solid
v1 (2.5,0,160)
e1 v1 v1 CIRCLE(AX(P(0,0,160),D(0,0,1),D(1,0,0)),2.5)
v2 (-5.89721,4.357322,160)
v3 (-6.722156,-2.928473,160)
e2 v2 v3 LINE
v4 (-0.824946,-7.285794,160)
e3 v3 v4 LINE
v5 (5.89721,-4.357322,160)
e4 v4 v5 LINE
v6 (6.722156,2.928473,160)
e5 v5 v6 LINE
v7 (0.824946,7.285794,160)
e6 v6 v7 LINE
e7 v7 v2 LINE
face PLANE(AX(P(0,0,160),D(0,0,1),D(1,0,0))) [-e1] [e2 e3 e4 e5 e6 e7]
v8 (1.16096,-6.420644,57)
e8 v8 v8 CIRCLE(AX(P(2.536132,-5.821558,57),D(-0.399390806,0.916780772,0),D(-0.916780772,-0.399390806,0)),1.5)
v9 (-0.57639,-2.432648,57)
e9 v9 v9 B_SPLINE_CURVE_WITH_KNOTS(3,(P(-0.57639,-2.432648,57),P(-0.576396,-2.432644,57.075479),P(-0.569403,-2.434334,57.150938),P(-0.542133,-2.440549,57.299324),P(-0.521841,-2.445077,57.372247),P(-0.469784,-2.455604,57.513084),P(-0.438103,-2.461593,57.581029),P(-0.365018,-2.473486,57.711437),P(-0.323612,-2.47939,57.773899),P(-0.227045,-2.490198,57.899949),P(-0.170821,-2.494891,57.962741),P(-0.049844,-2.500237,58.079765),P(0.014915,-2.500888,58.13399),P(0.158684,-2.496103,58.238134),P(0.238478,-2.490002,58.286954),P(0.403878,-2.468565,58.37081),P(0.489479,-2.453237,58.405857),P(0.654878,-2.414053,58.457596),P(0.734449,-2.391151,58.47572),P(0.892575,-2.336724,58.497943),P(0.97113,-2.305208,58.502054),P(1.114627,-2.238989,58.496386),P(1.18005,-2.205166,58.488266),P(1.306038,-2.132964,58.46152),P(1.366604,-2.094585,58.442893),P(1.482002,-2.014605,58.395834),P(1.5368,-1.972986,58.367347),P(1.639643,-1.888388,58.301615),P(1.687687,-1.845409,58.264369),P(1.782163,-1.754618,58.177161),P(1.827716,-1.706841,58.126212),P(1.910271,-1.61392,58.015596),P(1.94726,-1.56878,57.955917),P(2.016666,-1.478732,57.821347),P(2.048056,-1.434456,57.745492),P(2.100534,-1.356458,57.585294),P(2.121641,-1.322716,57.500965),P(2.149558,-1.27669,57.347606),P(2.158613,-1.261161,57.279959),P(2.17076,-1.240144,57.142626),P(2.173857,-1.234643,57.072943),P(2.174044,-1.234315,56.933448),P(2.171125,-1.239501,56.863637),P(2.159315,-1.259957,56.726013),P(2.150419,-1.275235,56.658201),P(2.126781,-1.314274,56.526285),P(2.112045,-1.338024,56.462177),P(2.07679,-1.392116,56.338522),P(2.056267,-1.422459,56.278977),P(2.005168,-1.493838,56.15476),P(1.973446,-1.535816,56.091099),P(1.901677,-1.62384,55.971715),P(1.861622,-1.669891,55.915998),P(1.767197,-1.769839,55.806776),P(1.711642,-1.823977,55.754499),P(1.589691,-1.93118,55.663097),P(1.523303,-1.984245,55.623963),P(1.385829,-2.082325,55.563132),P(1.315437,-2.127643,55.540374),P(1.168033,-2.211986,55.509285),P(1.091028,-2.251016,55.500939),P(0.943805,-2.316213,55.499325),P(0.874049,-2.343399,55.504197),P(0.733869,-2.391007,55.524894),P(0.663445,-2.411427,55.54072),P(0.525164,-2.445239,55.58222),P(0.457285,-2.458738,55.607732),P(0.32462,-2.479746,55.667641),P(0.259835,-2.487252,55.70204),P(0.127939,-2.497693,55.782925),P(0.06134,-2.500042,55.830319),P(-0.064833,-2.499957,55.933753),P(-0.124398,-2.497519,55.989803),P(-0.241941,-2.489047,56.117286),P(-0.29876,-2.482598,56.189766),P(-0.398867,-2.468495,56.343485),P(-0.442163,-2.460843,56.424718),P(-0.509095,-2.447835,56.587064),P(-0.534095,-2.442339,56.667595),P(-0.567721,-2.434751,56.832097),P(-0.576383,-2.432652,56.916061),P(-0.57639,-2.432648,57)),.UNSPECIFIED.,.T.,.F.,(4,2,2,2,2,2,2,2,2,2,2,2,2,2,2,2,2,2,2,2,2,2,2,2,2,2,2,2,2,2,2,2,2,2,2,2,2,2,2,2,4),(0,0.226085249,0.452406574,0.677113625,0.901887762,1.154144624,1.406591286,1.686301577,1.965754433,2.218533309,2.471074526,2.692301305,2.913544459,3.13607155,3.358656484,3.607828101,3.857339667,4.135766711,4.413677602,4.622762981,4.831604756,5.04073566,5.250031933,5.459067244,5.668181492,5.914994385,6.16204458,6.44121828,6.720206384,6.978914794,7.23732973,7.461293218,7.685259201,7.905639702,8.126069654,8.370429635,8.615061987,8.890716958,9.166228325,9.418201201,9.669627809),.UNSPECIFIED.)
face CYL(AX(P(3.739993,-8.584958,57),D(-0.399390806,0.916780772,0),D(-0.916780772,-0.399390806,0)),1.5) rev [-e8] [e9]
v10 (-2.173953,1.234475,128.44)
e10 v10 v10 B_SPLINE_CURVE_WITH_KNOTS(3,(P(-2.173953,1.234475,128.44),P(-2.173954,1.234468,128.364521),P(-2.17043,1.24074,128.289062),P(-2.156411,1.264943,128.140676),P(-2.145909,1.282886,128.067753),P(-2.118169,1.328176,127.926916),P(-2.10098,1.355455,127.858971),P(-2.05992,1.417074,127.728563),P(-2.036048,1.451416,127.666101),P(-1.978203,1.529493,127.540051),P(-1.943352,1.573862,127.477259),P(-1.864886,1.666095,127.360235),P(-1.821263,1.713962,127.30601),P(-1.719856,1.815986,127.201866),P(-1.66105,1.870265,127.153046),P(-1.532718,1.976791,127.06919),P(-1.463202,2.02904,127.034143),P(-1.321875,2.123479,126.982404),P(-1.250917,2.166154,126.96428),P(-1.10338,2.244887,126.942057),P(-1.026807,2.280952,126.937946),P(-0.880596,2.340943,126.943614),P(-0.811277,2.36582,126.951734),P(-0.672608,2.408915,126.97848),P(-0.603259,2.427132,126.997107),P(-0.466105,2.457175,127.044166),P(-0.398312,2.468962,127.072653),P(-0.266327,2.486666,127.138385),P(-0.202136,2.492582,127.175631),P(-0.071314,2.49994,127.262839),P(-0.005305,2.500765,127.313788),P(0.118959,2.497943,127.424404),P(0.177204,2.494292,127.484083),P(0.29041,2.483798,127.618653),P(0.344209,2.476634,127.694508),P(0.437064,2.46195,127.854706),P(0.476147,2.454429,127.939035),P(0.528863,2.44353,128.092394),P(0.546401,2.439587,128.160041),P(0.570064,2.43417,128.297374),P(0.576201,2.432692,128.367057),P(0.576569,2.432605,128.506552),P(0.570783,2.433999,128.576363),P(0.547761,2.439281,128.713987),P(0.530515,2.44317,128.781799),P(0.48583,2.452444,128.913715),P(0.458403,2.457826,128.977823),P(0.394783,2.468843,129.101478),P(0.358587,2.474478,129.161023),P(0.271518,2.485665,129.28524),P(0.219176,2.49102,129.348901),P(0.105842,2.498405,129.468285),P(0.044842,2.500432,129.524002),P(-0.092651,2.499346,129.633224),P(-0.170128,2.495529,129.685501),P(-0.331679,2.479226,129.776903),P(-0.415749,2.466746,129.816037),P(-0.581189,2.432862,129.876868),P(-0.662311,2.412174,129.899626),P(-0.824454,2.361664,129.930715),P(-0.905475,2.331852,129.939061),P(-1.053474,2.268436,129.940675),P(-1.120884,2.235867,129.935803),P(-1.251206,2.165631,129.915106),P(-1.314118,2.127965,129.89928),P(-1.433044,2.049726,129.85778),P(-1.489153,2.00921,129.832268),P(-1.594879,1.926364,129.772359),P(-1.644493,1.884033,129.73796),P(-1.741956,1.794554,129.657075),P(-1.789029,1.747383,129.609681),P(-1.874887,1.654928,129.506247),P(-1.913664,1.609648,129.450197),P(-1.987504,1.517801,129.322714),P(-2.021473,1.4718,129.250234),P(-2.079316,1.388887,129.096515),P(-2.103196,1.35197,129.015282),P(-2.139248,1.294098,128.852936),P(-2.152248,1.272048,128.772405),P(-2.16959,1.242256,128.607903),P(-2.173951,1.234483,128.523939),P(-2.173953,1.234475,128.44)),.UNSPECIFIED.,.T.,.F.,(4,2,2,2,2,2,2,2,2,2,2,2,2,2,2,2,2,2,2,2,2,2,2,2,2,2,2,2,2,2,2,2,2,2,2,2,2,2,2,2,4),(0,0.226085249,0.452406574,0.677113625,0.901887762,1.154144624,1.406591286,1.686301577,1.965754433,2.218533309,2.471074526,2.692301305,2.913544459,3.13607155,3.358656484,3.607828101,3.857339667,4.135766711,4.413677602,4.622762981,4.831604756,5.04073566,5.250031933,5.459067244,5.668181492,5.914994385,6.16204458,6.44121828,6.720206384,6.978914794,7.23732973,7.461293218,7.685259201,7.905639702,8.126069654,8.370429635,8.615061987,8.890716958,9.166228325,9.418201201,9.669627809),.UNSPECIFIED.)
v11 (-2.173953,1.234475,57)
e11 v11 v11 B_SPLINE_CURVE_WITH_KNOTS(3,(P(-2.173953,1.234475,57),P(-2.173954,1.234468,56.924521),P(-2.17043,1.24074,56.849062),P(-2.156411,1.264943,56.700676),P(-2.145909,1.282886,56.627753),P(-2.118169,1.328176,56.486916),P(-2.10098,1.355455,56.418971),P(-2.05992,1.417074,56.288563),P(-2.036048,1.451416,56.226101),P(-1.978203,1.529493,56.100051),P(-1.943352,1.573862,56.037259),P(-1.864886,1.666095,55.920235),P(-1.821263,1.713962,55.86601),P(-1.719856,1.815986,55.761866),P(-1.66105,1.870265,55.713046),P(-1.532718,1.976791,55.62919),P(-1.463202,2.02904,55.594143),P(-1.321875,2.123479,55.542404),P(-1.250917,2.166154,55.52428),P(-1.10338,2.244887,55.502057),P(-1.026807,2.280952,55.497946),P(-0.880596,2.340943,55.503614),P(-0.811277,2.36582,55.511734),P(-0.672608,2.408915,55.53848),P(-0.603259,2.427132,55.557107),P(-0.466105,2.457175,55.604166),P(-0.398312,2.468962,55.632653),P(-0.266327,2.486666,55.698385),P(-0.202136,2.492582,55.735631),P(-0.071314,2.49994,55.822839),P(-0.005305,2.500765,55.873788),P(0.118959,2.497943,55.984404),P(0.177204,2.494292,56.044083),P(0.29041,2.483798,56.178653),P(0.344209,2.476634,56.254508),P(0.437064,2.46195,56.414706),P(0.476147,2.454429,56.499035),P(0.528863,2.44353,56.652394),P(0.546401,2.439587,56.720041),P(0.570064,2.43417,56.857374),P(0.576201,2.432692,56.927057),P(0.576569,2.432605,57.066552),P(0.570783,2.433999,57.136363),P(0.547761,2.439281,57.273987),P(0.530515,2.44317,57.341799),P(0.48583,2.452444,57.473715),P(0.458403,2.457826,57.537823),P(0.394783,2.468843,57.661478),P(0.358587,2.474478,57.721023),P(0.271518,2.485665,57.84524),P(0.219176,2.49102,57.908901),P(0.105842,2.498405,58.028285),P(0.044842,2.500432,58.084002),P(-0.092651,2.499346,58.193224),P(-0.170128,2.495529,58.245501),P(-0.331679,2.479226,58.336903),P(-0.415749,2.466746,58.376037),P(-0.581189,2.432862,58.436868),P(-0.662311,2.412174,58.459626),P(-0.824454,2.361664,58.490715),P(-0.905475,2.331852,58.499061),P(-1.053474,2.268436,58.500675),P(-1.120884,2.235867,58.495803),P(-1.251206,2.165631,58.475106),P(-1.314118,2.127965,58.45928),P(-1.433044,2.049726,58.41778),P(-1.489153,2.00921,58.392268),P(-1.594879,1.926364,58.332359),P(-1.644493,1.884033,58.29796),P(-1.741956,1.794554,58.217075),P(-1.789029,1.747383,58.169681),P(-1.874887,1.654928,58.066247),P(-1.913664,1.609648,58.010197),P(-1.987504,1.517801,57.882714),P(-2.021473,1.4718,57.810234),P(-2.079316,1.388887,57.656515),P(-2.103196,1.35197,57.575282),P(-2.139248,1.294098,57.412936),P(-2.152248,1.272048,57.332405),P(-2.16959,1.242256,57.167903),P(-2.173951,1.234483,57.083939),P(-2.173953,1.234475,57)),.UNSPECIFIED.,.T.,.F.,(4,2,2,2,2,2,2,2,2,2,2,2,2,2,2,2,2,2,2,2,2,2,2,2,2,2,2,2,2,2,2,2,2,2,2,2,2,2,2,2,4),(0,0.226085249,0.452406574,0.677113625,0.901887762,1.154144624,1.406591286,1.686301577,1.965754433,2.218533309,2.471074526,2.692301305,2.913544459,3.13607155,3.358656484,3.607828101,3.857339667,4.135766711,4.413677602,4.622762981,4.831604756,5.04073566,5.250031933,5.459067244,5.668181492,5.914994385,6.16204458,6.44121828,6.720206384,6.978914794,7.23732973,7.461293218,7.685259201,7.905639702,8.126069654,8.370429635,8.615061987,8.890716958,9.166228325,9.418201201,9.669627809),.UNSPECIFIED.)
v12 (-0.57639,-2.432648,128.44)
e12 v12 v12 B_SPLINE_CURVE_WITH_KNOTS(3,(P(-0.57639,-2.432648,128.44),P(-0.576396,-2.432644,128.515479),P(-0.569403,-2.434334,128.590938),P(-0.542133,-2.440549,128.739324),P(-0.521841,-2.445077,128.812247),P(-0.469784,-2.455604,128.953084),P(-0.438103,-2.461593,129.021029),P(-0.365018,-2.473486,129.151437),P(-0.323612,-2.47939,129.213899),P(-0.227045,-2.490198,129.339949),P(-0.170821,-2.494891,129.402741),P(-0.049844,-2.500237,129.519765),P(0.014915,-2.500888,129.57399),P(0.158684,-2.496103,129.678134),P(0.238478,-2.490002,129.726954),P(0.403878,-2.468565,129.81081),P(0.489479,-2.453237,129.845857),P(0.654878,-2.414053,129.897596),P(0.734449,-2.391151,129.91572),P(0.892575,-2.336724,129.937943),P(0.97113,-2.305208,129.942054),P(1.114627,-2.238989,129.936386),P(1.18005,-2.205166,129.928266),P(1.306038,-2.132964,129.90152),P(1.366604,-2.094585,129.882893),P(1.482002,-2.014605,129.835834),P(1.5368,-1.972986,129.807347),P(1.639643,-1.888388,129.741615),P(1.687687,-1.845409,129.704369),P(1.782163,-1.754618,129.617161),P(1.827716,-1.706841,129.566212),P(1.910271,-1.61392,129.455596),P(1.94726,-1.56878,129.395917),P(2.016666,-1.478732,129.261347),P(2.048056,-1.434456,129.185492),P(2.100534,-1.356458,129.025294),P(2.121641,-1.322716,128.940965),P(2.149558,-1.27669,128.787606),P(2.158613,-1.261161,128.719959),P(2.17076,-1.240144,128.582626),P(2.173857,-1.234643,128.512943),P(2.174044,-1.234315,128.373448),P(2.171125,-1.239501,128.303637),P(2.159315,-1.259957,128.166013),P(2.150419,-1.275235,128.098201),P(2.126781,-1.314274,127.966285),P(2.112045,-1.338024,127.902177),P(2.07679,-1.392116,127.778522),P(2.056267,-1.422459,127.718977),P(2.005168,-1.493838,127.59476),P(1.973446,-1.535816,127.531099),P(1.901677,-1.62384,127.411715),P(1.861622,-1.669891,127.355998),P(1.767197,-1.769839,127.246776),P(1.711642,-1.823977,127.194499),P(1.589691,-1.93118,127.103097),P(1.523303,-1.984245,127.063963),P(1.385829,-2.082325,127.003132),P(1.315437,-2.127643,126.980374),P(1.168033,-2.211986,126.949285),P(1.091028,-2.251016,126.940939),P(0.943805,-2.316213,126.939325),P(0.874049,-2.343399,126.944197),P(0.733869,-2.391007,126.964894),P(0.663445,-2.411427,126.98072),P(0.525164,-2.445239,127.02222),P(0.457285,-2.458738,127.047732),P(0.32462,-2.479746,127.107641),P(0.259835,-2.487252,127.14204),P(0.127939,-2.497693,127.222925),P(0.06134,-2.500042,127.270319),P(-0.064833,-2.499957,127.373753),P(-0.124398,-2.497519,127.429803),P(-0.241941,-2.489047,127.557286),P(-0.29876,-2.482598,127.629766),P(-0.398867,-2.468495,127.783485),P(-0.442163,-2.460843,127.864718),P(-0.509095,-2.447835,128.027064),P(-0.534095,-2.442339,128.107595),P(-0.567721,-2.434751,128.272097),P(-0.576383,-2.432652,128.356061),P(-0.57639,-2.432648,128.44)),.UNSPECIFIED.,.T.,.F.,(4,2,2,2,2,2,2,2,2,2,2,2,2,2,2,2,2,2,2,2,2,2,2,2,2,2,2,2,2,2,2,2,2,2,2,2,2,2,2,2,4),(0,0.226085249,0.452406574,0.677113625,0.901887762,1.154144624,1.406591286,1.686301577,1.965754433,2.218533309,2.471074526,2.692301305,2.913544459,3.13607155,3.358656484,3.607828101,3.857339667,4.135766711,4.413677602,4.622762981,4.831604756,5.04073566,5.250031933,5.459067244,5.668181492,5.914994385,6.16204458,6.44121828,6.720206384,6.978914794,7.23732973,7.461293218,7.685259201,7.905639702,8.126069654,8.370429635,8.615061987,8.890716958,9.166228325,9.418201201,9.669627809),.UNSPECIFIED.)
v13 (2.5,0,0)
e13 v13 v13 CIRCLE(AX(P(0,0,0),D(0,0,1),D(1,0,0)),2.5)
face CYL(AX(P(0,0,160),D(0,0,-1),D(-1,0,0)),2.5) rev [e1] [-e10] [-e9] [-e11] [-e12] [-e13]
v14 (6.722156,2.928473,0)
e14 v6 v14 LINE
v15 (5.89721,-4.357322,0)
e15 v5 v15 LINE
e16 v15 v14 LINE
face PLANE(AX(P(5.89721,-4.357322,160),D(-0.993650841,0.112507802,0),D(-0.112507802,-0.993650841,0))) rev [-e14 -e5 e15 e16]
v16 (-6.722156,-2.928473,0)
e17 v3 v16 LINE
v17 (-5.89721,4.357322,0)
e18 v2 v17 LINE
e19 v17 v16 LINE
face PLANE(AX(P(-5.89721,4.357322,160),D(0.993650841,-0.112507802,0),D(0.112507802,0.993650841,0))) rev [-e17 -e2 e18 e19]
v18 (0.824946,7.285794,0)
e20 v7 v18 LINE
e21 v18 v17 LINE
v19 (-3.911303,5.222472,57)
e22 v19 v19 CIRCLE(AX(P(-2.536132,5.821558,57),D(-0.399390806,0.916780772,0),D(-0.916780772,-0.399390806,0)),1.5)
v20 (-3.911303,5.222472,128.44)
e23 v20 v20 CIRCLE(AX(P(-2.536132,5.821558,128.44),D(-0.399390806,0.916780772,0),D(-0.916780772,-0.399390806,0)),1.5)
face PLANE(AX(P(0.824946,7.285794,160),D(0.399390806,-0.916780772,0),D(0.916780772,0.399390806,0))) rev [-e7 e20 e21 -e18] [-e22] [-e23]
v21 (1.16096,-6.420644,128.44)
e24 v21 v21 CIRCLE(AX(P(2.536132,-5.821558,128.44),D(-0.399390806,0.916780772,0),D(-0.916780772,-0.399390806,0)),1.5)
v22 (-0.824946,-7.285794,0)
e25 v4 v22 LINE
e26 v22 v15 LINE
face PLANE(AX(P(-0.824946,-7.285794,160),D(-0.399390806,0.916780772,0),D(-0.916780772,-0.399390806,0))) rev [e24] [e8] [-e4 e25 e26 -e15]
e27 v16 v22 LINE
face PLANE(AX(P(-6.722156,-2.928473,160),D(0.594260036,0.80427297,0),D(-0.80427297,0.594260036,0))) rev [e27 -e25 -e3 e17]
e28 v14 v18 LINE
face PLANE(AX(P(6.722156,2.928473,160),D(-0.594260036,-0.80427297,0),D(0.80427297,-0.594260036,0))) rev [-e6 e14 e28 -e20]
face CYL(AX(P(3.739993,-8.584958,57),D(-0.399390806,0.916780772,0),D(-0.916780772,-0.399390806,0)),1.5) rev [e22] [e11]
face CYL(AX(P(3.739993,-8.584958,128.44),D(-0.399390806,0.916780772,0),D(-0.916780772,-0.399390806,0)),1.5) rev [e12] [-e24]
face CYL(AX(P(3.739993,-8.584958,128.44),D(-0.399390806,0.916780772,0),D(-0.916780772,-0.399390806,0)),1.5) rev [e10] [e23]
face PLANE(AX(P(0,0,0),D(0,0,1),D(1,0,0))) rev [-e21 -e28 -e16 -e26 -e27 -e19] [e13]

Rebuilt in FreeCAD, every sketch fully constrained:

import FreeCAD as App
import Part
import Sketcher

V = App.Vector
Q = App.Units.Quantity


def add_polygon(sketch, points):
    """Adds a closed chain of lines whose ends are joined by coincident constraints."""
    first, n = sketch.GeometryCount, len(points)
    for a, b in zip(points, points[1:] + points[:1]):
        sketch.addGeometry(Part.LineSegment(App.Vector(*a, 0), App.Vector(*b, 0)), False)
    for i in range(n):
        sketch.addConstraint(Sketcher.Constraint("Coincident", first + i, 2, first + (i + 1) % n, 1))

doc = App.newDocument("Part")
body = doc.addObject("PartDesign::Body", "Body")

# Sketch on XY plane
sketch1 = body.newObject("Sketcher::SketchObject", "Sketch")
sketch1.AttachmentSupport = (doc.getObject("XY_Plane"), [""])
sketch1.MapMode = "FlatFace"
add_polygon(sketch1, [(5.89721, -4.357322), (6.722156, 2.928473), (0.824946, 7.285794), (-5.89721, 4.357322), (-6.722156, -2.928473), (-0.824946, -7.285794)])  # lines 0-5
sketch1.addGeometry(Part.Circle(V(0, 0, 0), V(0, 0, 1), 2.5), False)  # 6
sketch1.addConstraint([
    Sketcher.Constraint("Coincident", 6, 3, -1, 1),
    Sketcher.Constraint("Symmetric", 0, 2, 3, 2, -1, 1),
    Sketcher.Constraint("Symmetric", 1, 2, 4, 2, -1, 1),
    Sketcher.Constraint("Symmetric", 2, 2, 5, 2, -1, 1),
    Sketcher.Constraint("Equal", 0, 1),
    Sketcher.Constraint("Equal", 1, 2),
    Sketcher.Constraint("Diameter", 6, Q("5 mm")),
    Sketcher.Constraint("Distance", 0, Q("7.332348 mm")),
    Sketcher.Constraint("DistanceX", 2, 2, -1, 1, Q("5.89721 mm")),
    Sketcher.Constraint("DistanceY", -1, 1, 2, 2, Q("4.357322 mm")),
    Sketcher.Constraint("DistanceX", 1, 2, 0, 2, Q("5.89721 mm")),
])
pad1 = body.newObject("PartDesign::Pad", "Pad")
pad1.Profile = sketch1
pad1.Length = 160

# Sketch on an angled plane
sketch2 = body.newObject("Sketcher::SketchObject", "Sketch001")
sketch2.Placement = App.Placement(V(-2.536132, 5.821558, 0), App.Rotation(V(0.916780772, 0.399390806, 0), V(0, 0, -1), V(-0.399390806, 0.916780772, 0), "ZXY"))
sketch2.addGeometry(Part.Circle(V(0, -57, 0), V(0, 0, 1), 1.5), False)
sketch2.addConstraint([
    Sketcher.Constraint("PointOnObject", 0, 3, -2),
    Sketcher.Constraint("Diameter", 0, Q("3 mm")),
    Sketcher.Constraint("DistanceY", 0, 3, -1, 1, Q("57 mm")),
])
pocket1 = body.newObject("PartDesign::Pocket", "Pocket")
pocket1.Profile = sketch2
pocket1.Type = "ThroughAll"

# Sketch on an angled plane
sketch3 = body.newObject("Sketcher::SketchObject", "Sketch002")
sketch3.Placement = App.Placement(V(-2.536132, 5.821558, 0), App.Rotation(V(0.916780772, 0.399390806, 0), V(0, 0, -1), V(-0.399390806, 0.916780772, 0), "ZXY"))
sketch3.addGeometry(Part.Circle(V(0, -128.44, 0), V(0, 0, 1), 1.5), False)
sketch3.addConstraint([
    Sketcher.Constraint("PointOnObject", 0, 3, -2),
    Sketcher.Constraint("Diameter", 0, Q("3 mm")),
    Sketcher.Constraint("DistanceY", 0, 3, -1, 1, Q("128.44 mm")),
])
pocket2 = body.newObject("PartDesign::Pocket", "Pocket001")
pocket2.Profile = sketch3
pocket2.Type = "ThroughAll"

doc.recompute()
